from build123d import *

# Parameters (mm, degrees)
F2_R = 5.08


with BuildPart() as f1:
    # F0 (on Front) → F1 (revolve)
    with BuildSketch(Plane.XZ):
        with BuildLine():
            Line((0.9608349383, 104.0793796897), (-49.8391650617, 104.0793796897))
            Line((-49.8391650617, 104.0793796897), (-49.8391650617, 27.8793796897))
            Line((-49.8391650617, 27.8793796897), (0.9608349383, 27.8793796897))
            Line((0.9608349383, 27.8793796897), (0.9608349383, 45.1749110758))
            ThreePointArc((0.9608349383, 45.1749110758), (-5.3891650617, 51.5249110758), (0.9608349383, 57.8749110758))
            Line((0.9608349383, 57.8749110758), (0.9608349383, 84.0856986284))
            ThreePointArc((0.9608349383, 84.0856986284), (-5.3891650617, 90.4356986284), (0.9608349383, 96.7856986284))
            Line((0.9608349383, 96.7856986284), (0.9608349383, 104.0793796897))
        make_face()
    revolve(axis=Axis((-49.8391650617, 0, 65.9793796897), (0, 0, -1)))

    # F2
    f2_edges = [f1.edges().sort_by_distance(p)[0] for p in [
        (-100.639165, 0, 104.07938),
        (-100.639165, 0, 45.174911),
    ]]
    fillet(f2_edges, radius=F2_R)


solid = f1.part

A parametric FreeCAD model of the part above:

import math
import FreeCAD as App
import Part
import Sketcher
Q = App.Units.Quantity


def edges_at(feature, points):
    """Names of the edges that pass closest to the given points."""
    edges = feature.Shape.Edges
    near = lambda p: min(range(len(edges)), key=lambda i: edges[i].distToShape(Part.Vertex(*p))[0])
    return sorted({f"Edge{near(p) + 1}" for p in points})

doc = App.newDocument("Part")
params = doc.addObject("Spreadsheet::Sheet", "Params")
for row, (alias, value) in enumerate([
    ("sketch1_width", "2 in"),
    ("sketch1_height", "3 in"),
    ("sketch1_radius", "0.25 in"),
    ("revolution_angle", "360 deg"),
    ("fillet_radius", "0.2 in"),
], start=1):
    params.set(f"A{row}", alias)
    params.set(f"B{row}", "=" + value)
    params.setAlias(f"B{row}", alias)

body = doc.addObject("PartDesign::Body", "Body")

sketch1 = body.newObject("Sketcher::SketchObject", "Sketch")
sketch1.AttachmentSupport = (doc.getObject("XZ_Plane"), [""])
sketch1.MapMode = "FlatFace"
sketch1.addGeometry([
    Part.LineSegment(App.Vector(1, 104, 0), App.Vector(-50, 104, 0)),
    Part.LineSegment(App.Vector(-50, 104, 0), App.Vector(-50, 28, 0)),
    Part.LineSegment(App.Vector(-50, 28, 0), App.Vector(1, 28, 0)),
    Part.LineSegment(App.Vector(1, 28, 0), App.Vector(1, 45, 0)),
    Part.ArcOfCircle(Part.Circle(App.Vector(1, 52, 0), App.Vector(0, 0, 1), 6), math.radians(90), math.radians(270)),
    Part.LineSegment(App.Vector(1, 58, 0), App.Vector(1, 84, 0)),
    Part.ArcOfCircle(Part.Circle(App.Vector(1, 90, 0), App.Vector(0, 0, 1), 6), math.radians(90), math.radians(270)),
    Part.LineSegment(App.Vector(1, 97, 0), App.Vector(1, 104, 0)),
], False)
sketch1.addGeometry(Part.LineSegment(App.Vector(-50, 104, 0), App.Vector(-50, 28, 0)), True)
sketch1.addConstraint([
    Sketcher.Constraint("Coincident", 0, 2, 1, 1),
    Sketcher.Constraint("Coincident", 1, 2, 2, 1),
    Sketcher.Constraint("Coincident", 2, 2, 3, 1),
    Sketcher.Constraint("Coincident", 3, 2, 4, 2),
    Sketcher.Constraint("Coincident", 4, 1, 5, 1),
    Sketcher.Constraint("Coincident", 5, 2, 6, 2),
    Sketcher.Constraint("Coincident", 6, 1, 7, 1),
    Sketcher.Constraint("Coincident", 7, 2, 0, 1),
    Sketcher.Constraint("Horizontal", 0),
    Sketcher.Constraint("Vertical", 1),
    Sketcher.Constraint("Horizontal", 2),
    Sketcher.Constraint("Vertical", 3),
    Sketcher.Constraint("Vertical", 5),
    Sketcher.Constraint("Vertical", 7),
    Sketcher.Constraint("Vertical", 8),
    Sketcher.Constraint("Coincident", 8, 1, 0, 2),
    Sketcher.Constraint("Equal", 4, 6),
    Sketcher.Constraint("Horizontal", 2, 2, 8, 2),
    Sketcher.Constraint("Vertical", 4, 3, 6, 3),
    Sketcher.Constraint("Vertical", 6, 3, 2, 2),
    Sketcher.Constraint("Vertical", 3, 2, 4, 1),
    Sketcher.Constraint("Vertical", 5, 2, 6, 1),
    Sketcher.Constraint("DistanceX", 0, 2, 0, 1, Q("2 in")),
    Sketcher.Constraint("DistanceY", 1, 2, 1, 1, Q("3 in")),
    Sketcher.Constraint("Radius", 4, Q("0.25 in")),
    Sketcher.Constraint("DistanceY", 3, 1, 3, 2, Q("17.295531 mm")),
    Sketcher.Constraint("DistanceY", 7, 1, 7, 2, Q("7.293681 mm")),
    Sketcher.Constraint("DistanceY", -1, 1, 6, 3, Q("90.435699 mm")),
    Sketcher.Constraint("DistanceX", -1, 1, 4, 3, Q("0.960835 mm")),
])
sketch1.setExpression("Constraints[22]", "Params.sketch1_width")
sketch1.setExpression("Constraints[23]", "Params.sketch1_height")
sketch1.setExpression("Constraints[24]", "Params.sketch1_radius")
revolution = body.newObject("PartDesign::Revolution", "Revolution")
revolution.Profile = sketch1
revolution.ReferenceAxis = (sketch1, ["Axis0"])
revolution.setExpression("Angle", "Params.revolution_angle")
doc.recompute()

fillet = body.newObject("PartDesign::Fillet", "Fillet")
fillet.Base = (revolution, edges_at(revolution, [(-100.639, 0, 104.079), (-100.639, 0, 45.175)]))
fillet.setExpression("Radius", "Params.fillet_radius")

doc.recompute()
